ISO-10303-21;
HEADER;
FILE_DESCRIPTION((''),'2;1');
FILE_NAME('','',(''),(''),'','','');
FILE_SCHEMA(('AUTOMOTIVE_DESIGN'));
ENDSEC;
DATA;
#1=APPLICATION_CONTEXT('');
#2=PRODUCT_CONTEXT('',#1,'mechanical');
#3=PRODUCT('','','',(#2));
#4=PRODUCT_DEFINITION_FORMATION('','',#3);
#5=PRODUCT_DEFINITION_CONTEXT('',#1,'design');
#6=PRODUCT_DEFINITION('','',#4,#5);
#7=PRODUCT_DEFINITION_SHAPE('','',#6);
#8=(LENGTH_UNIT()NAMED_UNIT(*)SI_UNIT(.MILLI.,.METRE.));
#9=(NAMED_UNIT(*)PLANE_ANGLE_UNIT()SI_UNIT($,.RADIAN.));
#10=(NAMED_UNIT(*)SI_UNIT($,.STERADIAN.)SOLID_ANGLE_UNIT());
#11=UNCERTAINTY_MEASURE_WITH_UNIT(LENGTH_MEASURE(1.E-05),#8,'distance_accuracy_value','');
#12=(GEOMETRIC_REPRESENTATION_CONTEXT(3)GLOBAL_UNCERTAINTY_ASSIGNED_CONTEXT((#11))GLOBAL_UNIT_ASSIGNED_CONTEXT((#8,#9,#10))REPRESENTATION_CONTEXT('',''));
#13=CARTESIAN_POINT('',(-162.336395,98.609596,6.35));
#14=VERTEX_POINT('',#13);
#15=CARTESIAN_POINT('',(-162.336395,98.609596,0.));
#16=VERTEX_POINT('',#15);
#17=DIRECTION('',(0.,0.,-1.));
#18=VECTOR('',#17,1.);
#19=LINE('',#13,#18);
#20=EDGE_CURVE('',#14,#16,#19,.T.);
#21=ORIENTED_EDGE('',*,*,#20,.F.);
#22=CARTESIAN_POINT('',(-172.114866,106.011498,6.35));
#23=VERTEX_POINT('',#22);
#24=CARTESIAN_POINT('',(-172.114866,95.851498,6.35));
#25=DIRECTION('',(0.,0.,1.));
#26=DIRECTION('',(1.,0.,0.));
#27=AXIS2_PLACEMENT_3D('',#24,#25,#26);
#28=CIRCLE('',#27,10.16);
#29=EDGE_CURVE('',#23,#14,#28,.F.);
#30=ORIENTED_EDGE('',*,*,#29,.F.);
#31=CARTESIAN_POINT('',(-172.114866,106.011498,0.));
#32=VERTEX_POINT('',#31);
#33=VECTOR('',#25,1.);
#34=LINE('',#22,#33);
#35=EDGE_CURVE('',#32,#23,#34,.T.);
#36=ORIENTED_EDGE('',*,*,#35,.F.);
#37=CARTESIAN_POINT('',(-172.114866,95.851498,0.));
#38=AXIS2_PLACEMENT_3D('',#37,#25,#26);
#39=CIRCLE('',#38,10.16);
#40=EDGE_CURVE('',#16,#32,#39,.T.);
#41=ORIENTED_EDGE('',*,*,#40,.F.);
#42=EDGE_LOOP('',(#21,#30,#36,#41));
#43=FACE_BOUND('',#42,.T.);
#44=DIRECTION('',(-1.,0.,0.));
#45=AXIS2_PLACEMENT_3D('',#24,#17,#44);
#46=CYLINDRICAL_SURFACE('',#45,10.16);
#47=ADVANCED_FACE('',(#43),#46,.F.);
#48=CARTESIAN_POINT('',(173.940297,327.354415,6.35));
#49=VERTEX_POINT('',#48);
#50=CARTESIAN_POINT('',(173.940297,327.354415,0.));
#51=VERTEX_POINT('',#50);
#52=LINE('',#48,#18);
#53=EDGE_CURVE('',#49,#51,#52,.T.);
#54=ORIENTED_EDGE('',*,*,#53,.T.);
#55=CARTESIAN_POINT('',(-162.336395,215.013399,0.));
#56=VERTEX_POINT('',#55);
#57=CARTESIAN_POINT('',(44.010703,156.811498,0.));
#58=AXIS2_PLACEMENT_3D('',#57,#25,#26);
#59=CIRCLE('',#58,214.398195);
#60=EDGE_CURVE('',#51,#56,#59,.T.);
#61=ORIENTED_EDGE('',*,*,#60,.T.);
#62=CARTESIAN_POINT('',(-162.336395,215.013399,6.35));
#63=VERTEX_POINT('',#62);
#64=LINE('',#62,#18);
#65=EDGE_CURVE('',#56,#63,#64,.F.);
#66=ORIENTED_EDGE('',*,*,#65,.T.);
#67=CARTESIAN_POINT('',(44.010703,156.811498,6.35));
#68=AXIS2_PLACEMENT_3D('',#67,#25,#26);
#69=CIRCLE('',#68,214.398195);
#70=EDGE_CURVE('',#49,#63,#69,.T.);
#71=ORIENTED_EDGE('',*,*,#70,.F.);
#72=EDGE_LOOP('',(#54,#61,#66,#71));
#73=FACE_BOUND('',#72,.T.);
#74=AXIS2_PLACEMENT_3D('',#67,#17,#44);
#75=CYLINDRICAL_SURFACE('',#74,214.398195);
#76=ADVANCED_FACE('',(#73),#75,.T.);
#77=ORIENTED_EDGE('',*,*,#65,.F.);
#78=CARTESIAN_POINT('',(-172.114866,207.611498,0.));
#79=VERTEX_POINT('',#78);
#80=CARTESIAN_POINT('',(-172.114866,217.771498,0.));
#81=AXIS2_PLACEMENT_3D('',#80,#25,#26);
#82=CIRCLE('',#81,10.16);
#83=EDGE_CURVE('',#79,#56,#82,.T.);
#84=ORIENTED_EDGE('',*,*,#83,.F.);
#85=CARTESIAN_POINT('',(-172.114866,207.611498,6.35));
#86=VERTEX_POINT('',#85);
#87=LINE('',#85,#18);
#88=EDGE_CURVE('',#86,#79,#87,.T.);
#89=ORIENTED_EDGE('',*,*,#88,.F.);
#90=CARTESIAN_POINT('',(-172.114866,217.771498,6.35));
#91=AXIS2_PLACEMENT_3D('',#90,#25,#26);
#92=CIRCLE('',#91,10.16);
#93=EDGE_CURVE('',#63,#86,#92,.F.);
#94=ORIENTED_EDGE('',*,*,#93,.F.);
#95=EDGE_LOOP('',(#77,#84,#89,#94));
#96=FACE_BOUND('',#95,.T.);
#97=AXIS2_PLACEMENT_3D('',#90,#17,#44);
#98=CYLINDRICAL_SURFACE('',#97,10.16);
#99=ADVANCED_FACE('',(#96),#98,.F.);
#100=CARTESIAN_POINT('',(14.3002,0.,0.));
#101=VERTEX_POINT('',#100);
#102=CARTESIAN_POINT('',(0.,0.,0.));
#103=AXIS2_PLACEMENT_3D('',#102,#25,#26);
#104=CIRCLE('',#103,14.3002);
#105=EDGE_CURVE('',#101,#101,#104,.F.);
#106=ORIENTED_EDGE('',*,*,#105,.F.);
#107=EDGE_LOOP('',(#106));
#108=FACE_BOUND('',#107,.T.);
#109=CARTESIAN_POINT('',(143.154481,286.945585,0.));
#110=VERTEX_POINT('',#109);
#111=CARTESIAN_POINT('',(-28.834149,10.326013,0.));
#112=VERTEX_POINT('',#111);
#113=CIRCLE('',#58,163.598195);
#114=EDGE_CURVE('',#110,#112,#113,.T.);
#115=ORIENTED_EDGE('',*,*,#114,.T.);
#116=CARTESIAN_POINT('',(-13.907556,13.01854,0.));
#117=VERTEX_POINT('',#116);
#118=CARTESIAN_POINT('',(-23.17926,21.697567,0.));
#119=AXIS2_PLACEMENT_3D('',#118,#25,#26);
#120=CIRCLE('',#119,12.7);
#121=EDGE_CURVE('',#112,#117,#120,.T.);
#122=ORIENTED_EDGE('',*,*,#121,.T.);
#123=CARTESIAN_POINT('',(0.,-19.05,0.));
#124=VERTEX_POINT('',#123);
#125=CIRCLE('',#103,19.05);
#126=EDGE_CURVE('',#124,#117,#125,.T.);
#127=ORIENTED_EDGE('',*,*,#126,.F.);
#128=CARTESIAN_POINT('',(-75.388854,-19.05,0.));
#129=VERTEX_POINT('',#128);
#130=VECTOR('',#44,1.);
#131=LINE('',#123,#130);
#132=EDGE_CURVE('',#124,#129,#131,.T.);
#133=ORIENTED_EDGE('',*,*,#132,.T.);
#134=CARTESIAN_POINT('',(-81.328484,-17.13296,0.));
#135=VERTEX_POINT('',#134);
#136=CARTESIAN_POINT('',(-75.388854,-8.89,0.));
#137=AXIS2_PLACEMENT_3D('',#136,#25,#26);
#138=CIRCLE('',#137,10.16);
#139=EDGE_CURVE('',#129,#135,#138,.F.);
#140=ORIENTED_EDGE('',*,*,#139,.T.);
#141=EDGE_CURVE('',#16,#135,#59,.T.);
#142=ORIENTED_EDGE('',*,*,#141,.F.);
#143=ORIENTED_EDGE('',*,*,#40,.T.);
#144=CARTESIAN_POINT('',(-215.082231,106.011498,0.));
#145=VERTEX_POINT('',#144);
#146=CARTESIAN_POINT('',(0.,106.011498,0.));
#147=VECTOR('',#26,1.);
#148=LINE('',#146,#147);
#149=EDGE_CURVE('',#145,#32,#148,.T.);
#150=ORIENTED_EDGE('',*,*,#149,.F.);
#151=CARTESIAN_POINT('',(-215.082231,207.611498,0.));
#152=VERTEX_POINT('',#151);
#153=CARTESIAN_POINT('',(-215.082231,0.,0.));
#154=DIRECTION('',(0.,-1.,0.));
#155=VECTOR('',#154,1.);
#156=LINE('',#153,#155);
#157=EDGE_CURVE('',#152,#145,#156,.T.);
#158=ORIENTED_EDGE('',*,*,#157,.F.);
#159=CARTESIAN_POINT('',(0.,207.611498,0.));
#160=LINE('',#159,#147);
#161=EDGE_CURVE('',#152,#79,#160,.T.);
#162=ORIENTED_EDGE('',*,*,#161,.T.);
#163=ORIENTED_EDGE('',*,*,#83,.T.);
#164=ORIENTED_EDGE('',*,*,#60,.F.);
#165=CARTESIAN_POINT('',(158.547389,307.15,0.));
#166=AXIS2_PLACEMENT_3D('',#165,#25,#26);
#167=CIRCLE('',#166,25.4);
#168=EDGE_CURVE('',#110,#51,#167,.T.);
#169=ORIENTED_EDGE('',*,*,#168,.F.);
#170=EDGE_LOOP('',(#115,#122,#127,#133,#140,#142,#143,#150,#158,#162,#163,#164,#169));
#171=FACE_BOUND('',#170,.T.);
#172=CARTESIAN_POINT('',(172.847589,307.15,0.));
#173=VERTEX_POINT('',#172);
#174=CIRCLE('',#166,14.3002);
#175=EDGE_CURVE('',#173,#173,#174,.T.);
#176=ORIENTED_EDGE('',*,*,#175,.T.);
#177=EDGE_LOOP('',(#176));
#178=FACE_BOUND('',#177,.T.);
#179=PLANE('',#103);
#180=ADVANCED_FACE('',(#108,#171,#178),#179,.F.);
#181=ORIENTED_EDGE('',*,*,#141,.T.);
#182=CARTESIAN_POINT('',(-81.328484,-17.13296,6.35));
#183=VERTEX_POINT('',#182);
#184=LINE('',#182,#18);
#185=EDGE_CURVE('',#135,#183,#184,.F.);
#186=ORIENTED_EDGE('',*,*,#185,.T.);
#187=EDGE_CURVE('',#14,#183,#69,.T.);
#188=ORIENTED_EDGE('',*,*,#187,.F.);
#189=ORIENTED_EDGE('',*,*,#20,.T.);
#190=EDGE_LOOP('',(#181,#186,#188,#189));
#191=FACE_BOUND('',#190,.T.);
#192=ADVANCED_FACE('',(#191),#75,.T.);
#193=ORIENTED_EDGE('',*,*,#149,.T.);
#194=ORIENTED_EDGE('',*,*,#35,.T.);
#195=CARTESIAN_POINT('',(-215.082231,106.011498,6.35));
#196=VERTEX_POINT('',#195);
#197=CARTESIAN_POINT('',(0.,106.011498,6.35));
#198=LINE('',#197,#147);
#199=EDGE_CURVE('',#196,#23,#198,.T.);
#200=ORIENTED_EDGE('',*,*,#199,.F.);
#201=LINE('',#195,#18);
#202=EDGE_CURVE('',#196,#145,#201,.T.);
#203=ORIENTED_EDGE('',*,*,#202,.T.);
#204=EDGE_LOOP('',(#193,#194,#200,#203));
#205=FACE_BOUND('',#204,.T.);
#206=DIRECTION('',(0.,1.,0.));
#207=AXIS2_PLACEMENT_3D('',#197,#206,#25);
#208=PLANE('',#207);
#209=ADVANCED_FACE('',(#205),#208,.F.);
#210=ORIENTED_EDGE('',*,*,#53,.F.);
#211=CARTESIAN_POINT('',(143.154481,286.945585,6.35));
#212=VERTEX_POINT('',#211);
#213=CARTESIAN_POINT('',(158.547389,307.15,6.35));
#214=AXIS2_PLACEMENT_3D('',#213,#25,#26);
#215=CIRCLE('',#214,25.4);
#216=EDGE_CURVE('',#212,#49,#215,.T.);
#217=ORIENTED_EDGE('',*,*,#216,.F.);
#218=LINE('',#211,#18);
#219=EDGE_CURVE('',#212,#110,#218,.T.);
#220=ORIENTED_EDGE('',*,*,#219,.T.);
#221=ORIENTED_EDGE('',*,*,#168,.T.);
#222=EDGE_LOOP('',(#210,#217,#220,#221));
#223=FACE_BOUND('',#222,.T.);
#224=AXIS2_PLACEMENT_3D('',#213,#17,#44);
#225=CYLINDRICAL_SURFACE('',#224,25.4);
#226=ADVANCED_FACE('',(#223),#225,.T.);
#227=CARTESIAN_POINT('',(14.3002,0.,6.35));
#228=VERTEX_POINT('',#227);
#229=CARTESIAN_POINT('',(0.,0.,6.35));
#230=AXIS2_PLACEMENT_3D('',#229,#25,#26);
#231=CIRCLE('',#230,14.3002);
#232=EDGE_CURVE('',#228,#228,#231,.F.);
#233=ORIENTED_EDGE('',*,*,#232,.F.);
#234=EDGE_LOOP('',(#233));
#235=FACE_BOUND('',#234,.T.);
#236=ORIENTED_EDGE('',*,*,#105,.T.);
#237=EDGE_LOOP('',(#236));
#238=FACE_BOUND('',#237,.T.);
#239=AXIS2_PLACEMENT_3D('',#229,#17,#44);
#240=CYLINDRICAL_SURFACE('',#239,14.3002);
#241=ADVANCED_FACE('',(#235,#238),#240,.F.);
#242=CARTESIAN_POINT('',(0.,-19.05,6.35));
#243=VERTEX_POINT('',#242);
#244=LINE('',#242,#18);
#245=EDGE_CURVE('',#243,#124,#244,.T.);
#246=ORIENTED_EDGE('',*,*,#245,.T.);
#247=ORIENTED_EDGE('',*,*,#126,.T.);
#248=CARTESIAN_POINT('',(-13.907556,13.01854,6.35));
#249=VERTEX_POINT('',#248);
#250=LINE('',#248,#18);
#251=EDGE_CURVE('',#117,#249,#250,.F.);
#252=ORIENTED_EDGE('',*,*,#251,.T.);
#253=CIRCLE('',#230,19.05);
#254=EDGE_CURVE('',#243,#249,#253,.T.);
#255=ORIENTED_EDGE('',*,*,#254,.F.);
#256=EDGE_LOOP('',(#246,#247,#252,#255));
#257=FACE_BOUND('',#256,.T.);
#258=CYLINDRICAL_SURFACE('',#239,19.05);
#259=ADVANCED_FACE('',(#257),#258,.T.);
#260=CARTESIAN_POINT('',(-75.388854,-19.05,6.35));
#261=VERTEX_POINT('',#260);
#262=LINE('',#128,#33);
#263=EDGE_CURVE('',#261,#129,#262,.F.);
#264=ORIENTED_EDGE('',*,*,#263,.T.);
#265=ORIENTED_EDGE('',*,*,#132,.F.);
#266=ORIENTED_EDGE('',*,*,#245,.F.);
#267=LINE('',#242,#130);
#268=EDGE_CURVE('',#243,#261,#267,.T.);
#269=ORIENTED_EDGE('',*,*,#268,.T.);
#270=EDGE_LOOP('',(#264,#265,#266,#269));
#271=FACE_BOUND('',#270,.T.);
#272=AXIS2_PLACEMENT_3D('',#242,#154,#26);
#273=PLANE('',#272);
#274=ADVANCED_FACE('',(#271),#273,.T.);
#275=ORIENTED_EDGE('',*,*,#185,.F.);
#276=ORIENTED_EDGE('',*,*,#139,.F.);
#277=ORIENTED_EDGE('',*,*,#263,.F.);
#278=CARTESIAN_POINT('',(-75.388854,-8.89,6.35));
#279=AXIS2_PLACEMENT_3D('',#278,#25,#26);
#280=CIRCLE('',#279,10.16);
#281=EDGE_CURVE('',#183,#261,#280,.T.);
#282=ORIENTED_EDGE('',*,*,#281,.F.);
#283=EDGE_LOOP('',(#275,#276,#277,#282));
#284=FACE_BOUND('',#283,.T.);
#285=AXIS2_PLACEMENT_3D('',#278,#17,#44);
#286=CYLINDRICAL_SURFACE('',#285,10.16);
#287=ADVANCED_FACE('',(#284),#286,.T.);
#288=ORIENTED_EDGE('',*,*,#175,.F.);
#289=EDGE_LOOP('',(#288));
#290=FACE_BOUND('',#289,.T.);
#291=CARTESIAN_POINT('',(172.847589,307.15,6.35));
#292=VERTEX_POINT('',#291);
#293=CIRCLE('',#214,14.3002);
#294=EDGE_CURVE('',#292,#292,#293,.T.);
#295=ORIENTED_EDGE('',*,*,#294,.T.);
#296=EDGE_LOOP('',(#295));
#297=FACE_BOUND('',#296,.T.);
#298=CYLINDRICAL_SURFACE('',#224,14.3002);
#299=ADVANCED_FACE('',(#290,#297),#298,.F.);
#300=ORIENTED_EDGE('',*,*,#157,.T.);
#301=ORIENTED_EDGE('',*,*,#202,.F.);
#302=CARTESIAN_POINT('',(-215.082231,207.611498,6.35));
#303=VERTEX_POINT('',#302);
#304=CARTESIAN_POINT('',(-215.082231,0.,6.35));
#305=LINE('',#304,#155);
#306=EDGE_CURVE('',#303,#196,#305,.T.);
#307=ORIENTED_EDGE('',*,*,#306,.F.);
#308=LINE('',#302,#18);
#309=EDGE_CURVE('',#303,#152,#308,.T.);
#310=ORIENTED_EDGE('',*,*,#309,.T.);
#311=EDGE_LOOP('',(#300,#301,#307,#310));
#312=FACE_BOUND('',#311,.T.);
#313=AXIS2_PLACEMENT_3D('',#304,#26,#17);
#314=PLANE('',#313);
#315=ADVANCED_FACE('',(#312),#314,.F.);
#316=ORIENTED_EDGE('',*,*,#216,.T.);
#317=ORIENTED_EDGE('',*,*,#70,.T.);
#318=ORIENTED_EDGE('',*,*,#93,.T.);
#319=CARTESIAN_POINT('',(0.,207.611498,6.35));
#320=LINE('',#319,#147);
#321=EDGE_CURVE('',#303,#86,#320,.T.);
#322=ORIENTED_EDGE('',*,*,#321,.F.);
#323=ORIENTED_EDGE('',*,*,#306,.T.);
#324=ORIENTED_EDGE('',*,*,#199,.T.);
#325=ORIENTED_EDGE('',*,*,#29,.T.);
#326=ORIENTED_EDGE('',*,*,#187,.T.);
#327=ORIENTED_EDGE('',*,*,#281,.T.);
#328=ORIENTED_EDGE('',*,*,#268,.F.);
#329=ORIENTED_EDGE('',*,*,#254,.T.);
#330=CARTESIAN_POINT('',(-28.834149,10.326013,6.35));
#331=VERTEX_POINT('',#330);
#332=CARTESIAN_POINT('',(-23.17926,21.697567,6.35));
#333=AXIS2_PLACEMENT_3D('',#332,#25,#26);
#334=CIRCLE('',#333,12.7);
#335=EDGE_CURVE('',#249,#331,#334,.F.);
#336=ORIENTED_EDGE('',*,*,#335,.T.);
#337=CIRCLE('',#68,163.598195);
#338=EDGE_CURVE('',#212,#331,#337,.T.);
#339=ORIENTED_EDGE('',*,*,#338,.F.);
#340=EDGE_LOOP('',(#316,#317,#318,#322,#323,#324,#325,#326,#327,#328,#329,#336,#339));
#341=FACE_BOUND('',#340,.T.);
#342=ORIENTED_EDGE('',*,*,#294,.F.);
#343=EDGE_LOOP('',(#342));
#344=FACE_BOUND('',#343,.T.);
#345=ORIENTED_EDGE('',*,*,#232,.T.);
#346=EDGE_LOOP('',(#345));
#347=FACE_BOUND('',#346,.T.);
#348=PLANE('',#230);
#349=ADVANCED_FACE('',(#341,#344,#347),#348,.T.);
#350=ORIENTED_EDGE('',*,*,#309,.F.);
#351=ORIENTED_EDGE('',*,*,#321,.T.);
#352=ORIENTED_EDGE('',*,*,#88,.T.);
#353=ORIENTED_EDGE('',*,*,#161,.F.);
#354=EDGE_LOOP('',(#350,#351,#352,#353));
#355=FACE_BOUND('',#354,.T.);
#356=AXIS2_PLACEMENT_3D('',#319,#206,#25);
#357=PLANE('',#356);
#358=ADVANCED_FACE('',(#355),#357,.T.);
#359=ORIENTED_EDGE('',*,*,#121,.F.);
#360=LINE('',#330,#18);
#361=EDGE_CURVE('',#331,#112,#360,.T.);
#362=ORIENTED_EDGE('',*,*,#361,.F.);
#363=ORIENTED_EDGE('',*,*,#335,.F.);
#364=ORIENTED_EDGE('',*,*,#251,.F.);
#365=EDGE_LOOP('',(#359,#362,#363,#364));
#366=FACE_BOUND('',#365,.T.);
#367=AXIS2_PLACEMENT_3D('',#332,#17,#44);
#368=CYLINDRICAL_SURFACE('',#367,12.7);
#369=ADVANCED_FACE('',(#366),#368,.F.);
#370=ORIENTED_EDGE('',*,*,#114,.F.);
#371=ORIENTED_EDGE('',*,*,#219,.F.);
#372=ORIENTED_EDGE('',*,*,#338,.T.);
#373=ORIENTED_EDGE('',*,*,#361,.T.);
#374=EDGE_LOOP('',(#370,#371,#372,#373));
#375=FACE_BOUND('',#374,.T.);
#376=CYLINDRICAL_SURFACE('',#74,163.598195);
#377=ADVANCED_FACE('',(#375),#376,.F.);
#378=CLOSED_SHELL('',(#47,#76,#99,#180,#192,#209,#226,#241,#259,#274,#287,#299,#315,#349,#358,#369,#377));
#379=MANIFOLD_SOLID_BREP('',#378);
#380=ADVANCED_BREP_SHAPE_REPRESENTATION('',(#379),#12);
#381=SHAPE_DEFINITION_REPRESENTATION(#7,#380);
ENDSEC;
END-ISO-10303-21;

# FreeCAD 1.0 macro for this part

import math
import FreeCAD as App
import Part
import Sketcher

V = App.Vector
Q = App.Units.Quantity


def edges_at(feature, points):
    """Names of the edges that pass closest to the given points."""
    edges = feature.Shape.Edges
    near = lambda p: min(range(len(edges)), key=lambda i: edges[i].distToShape(Part.Vertex(*p))[0])
    return sorted({f"Edge{near(p) + 1}" for p in points})

doc = App.newDocument("Part")
params = doc.addObject("Spreadsheet::Sheet", "Params")
for row, (alias, value) in enumerate([
    ("sketch1_radius", "1 in"),
    ("sketch1_width", "2 in"),
    ("sketch1_height", "4 in"),
    ("sketch1_radius2", "0.75 in"),
    ("sketch1_diameter", "1.126 in"),
    ("pad1_length", "0.25 in"),
    ("fillet_radius", "0.4 in"),
    ("fillet2_radius", "0.5 in"),
], start=1):
    params.set(f"A{row}", alias)
    params.set(f"B{row}", "=" + value)
    params.setAlias(f"B{row}", alias)

body = doc.addObject("PartDesign::Body", "Body")

# Sketch on XY plane
sketch1 = body.newObject("Sketcher::SketchObject", "Sketch")
sketch1.AttachmentSupport = (doc.getObject("XY_Plane"), [""])
sketch1.MapMode = "FlatFace"
sketch1.addGeometry([
    Part.LineSegment(V(-79, -19, 0), V(0, -19, 0)),  # 0
    Part.ArcOfCircle(Part.Circle(V(0, 0, 0), V(0, 0, 1), 19), math.radians(-90), math.radians(163)),  # 1
    Part.ArcOfCircle(Part.Circle(V(44, 157, 0), V(0, 0, 1), 164), math.radians(53), math.radians(248)),  # 2
    Part.ArcOfCircle(Part.Circle(V(159, 307, 0), V(0, 0, 1), 25), math.radians(-127), math.radians(53)),  # 3
    Part.ArcOfCircle(Part.Circle(V(44, 157, 0), V(0, 0, 1), 214), math.radians(53), math.radians(166)),  # 4
    Part.LineSegment(V(-164, 208, 0), V(-215, 208, 0)),  # 5
    Part.LineSegment(V(-215, 208, 0), V(-215, 106, 0)),  # 6
    Part.LineSegment(V(-215, 106, 0), V(-164, 106, 0)),  # 7
    Part.ArcOfCircle(Part.Circle(V(44, 157, 0), V(0, 0, 1), 214), math.radians(-166), math.radians(-125)),  # 8
    Part.Circle(V(0, 0, 0), V(0, 0, 1), 14),  # 9
    Part.Circle(V(159, 307, 0), V(0, 0, 1), 14),  # 10
], False)
sketch1.addConstraint([
    Sketcher.Constraint("Tangent", 0, 2, 1, 1),
    Sketcher.Constraint("Coincident", 1, 2, 2, 2),
    Sketcher.Constraint("Tangent", 2, 1, 3, 1),
    Sketcher.Constraint("Tangent", 3, 2, 4, 1),
    Sketcher.Constraint("Coincident", 4, 2, 5, 1),
    Sketcher.Constraint("Coincident", 5, 2, 6, 1),
    Sketcher.Constraint("Coincident", 6, 2, 7, 1),
    Sketcher.Constraint("Coincident", 7, 2, 8, 1),
    Sketcher.Constraint("Coincident", 8, 2, 0, 1),
    Sketcher.Constraint("Horizontal", 0),
    Sketcher.Constraint("Horizontal", 5),
    Sketcher.Constraint("Vertical", 6),
    Sketcher.Constraint("Horizontal", 7),
    Sketcher.Constraint("Coincident", 1, 3, -1, 1),
    Sketcher.Constraint("Coincident", 9, 3, -1, 1),
    Sketcher.Constraint("Coincident", 4, 3, 2, 3),
    Sketcher.Constraint("Coincident", 8, 3, 2, 3),
    Sketcher.Constraint("Coincident", 10, 3, 3, 3),
    Sketcher.Constraint("Equal", 4, 8),
    Sketcher.Constraint("Equal", 9, 10),
    Sketcher.Constraint("Vertical", 4, 2, 7, 2),
    Sketcher.Constraint("Radius", 3, Q("1 in")),
    Sketcher.Constraint("DistanceX", 5, 2, 5, 1, Q("2 in")),
    Sketcher.Constraint("DistanceY", 6, 2, 6, 1, Q("4 in")),
    Sketcher.Constraint("Radius", 1, Q("0.75 in")),
    Sketcher.Constraint("Diameter", 9, Q("1.126 in")),
    Sketcher.Constraint("DistanceX", 0, 1, 0, 2, Q("78.624201 mm")),
    Sketcher.Constraint("Radius", 2, Q("163.598195 mm")),
    Sketcher.Constraint("DistanceY", -1, 1, 3, 3, Q("307.15 mm")),
    Sketcher.Constraint("DistanceX", -1, 1, 3, 3, Q("158.547389 mm")),
])
sketch1.setExpression("Constraints[21]", "Params.sketch1_radius")
sketch1.setExpression("Constraints[22]", "Params.sketch1_width")
sketch1.setExpression("Constraints[23]", "Params.sketch1_height")
sketch1.setExpression("Constraints[24]", "Params.sketch1_radius2")
sketch1.setExpression("Constraints[25]", "Params.sketch1_diameter")
pad1 = body.newObject("PartDesign::Pad", "Pad")
pad1.Profile = sketch1
pad1.setExpression("Length", "Params.pad1_length")
doc.recompute()

fillet = body.newObject("PartDesign::Fillet", "Fillet")
fillet.Base = (pad1, edges_at(pad1, [(-78.624, -19.05, 3.175), (-164.282, 106.011, 3.175), (-164.282, 207.611, 3.175)]))
fillet.setExpression("Radius", "Params.fillet_radius")
doc.recompute()

fillet2 = body.newObject("PartDesign::Fillet", "Fillet001")
fillet2.Base = (fillet, edges_at(fillet, [(-18.234, 5.517, 3.175)]))
fillet2.setExpression("Radius", "Params.fillet2_radius")

doc.recompute()
